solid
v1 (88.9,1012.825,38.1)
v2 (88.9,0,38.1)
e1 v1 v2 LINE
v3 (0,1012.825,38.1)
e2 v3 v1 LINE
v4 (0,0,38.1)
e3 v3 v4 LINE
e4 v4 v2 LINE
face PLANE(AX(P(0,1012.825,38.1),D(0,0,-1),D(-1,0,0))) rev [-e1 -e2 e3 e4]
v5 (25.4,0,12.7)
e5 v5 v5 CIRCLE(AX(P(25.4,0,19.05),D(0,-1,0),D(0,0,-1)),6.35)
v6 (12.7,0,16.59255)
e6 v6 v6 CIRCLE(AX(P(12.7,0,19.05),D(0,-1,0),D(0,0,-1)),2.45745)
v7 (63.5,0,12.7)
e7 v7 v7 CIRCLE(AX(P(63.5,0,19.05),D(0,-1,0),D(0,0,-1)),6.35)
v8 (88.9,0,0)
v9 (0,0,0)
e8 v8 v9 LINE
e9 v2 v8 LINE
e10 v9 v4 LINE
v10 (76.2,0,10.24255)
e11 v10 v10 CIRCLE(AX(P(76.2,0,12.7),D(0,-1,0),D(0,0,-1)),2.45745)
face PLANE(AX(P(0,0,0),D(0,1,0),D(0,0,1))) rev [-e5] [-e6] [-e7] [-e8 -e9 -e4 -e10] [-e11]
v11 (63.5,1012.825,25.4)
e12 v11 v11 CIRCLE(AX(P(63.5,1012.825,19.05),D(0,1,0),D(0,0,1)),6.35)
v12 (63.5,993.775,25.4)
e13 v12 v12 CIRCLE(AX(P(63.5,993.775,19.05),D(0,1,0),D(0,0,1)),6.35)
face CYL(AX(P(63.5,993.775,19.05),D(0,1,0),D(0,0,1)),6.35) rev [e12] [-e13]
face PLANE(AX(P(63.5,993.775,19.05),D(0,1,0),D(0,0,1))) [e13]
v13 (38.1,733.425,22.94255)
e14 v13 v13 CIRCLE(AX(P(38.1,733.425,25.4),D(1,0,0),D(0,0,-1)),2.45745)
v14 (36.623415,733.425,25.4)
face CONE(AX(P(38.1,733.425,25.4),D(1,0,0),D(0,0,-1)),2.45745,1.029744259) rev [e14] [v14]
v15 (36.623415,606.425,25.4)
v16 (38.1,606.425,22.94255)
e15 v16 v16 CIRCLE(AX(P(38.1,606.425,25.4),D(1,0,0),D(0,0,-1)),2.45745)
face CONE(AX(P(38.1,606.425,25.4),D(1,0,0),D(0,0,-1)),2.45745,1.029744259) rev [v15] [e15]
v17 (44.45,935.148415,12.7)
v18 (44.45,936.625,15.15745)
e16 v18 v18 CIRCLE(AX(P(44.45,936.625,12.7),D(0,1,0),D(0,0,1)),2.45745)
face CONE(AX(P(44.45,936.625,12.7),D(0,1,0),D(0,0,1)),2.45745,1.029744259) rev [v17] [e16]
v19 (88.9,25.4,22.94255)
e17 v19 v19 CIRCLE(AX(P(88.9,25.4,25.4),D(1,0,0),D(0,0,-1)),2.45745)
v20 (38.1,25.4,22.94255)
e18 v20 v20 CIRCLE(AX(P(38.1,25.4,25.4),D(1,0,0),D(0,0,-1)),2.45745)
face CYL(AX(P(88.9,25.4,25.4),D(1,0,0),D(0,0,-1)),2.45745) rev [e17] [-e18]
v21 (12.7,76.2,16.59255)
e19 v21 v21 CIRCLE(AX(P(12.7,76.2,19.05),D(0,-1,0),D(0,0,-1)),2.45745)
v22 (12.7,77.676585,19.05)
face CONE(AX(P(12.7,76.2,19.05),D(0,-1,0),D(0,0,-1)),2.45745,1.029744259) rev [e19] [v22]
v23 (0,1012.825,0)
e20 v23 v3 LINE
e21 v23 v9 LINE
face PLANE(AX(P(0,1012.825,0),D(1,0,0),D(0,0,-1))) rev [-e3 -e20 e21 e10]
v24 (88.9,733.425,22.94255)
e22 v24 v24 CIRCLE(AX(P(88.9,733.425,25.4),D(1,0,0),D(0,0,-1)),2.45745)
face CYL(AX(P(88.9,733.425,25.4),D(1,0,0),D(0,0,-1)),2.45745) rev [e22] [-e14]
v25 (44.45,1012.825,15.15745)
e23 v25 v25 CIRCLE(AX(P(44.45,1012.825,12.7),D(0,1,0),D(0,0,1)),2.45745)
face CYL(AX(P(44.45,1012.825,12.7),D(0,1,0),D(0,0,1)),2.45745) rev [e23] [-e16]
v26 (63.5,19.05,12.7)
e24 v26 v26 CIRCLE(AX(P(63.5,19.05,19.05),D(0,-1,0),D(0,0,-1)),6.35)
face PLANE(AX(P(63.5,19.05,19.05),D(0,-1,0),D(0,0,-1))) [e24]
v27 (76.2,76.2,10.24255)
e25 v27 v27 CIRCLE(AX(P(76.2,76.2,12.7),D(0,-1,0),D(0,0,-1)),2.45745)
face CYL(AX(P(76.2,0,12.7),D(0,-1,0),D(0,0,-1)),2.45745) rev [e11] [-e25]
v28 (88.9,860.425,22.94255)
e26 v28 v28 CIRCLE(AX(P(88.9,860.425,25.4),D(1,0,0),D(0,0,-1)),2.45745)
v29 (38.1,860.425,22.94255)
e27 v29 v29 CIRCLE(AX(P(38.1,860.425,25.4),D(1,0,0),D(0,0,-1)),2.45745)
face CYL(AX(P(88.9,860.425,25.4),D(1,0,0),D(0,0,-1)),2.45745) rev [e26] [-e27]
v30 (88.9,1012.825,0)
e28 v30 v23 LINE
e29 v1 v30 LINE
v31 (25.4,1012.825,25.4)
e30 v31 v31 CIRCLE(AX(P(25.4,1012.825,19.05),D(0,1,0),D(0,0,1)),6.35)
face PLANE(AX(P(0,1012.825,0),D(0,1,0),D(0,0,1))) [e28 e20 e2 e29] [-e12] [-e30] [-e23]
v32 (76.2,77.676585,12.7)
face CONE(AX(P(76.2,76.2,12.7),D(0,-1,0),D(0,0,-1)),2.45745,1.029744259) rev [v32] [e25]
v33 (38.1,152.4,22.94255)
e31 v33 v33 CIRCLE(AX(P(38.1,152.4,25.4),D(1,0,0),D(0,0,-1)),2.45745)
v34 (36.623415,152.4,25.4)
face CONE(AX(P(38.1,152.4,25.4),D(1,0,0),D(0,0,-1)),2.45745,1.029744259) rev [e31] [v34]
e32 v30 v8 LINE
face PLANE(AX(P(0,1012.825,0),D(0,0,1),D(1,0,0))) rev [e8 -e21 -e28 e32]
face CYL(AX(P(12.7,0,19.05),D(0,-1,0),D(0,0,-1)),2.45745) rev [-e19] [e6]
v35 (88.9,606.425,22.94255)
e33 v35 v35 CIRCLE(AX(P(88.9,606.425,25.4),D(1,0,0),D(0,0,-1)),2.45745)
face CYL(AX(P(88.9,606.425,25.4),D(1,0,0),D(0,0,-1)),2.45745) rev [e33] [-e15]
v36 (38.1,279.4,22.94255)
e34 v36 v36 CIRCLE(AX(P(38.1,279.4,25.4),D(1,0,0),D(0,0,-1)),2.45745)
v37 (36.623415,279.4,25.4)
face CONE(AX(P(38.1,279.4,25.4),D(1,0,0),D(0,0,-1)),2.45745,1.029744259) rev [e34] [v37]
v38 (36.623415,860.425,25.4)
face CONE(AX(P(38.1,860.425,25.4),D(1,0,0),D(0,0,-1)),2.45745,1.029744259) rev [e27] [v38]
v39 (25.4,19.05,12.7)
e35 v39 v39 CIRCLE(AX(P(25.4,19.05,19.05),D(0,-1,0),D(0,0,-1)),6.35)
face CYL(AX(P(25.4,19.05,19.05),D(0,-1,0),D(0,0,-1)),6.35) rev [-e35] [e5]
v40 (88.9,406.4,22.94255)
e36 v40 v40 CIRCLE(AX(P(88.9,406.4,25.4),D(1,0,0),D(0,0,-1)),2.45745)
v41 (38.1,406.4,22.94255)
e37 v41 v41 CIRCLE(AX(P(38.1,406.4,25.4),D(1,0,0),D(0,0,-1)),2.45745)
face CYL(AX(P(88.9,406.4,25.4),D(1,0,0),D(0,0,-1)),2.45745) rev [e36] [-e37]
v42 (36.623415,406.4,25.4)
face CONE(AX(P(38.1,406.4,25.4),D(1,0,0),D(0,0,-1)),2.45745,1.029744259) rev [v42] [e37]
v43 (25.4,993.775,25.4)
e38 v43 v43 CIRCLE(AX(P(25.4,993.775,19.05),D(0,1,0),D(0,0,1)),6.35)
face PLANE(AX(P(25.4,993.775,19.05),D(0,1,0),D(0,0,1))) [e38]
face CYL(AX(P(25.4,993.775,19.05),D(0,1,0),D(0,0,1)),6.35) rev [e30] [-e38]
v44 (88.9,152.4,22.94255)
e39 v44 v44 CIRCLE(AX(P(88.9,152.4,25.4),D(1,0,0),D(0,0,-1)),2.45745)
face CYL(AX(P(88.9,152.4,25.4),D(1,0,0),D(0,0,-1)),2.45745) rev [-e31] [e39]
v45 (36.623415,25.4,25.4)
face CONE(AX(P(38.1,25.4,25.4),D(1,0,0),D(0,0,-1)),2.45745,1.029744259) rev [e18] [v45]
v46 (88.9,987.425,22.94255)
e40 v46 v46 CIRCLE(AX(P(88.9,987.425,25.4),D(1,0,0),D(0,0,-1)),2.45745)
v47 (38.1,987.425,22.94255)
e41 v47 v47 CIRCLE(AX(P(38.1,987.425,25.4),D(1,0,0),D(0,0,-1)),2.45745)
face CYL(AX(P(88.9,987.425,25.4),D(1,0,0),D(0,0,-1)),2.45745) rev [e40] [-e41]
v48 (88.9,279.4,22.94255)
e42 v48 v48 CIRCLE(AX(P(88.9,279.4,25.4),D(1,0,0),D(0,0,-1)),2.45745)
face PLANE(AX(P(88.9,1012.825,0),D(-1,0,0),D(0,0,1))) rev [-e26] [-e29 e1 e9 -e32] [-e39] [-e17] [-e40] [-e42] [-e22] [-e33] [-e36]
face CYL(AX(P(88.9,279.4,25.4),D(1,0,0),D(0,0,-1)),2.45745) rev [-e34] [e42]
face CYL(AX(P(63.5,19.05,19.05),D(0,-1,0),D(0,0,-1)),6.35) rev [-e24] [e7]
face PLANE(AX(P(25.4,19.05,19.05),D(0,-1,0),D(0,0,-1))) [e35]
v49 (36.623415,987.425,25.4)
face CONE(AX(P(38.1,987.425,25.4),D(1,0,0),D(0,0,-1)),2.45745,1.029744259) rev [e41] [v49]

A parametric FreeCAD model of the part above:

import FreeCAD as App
import Part
import Sketcher

V = App.Vector
Q = App.Units.Quantity

doc = App.newDocument("Part")
params = doc.addObject("Spreadsheet::Sheet", "Params")
for row, (alias, value) in enumerate([
    ("sketch1_width", "3.5 in"),
    ("sketch1_height", "1.5 in"),
    ("pad1_length", "39.875 in"),
    ("sketch2_diameter", "0.5 in"),
    ("pocket1_length", "0.75 in"),
    ("sketch3_diameter", "0.5 in"),
    ("pocket2_length", "0.75 in"),
    ("hole_diameter", "0.1935 in"),
    ("hole_depth", "3 in"),
    ("hole2_diameter", "0.1935 in"),
    ("hole2_depth", "3 in"),
    ("hole3_diameter", "0.1935 in"),
    ("hole3_depth", "2 in"),
], start=1):
    params.set(f"A{row}", alias)
    params.set(f"B{row}", "=" + value)
    params.setAlias(f"B{row}", alias)

body = doc.addObject("PartDesign::Body", "Body")

# Sketch on XZ plane
sketch1 = doc.addObject("Sketcher::SketchObject", "Sketch")
body.addObject(sketch1)
sketch1.AttachmentSupport = (doc.XZ_Plane, [""])
sketch1.MapMode = "FlatFace"
sketch1.addGeometry([
    Part.LineSegment(V(0, 0, 0), V(0, 38.1, 0)),
    Part.LineSegment(V(0, 38.1, 0), V(88.9, 38.1, 0)),
    Part.LineSegment(V(88.9, 38.1, 0), V(88.9, 0, 0)),
    Part.LineSegment(V(88.9, 0, 0), V(0, 0, 0)),
], False)
sketch1.addConstraint([
    Sketcher.Constraint("Coincident", 0, 2, 1, 1),
    Sketcher.Constraint("Coincident", 1, 2, 2, 1),
    Sketcher.Constraint("Coincident", 2, 2, 3, 1),
    Sketcher.Constraint("Coincident", 3, 2, 0, 1),
    Sketcher.Constraint("Vertical", 0),
    Sketcher.Constraint("Horizontal", 1),
    Sketcher.Constraint("Vertical", 2),
    Sketcher.Constraint("Horizontal", 3),
    Sketcher.Constraint("Coincident", 3, 2, -1, 1),
    Sketcher.Constraint("DistanceX", 1, 1, 1, 2, Q("3.5 in")),
    Sketcher.Constraint("DistanceY", 0, 1, 0, 2, Q("1.5 in")),
])
sketch1.setExpression("Constraints[9]", "Params.sketch1_width")
sketch1.setExpression("Constraints[10]", "Params.sketch1_height")
pad1 = doc.addObject("PartDesign::Pad", "Pad")
body.addObject(pad1)
pad1.Profile = sketch1
pad1.setExpression("Length", "Params.pad1_length")
pad1.Reversed = True

# Sketch on XZ plane
sketch2 = doc.addObject("Sketcher::SketchObject", "Sketch001")
body.addObject(sketch2)
sketch2.AttachmentSupport = (doc.XZ_Plane, [""])
sketch2.MapMode = "FlatFace"
sketch2.AttachmentOffset = App.Placement(V(0, 0, -39.875 * 25.4), App.Rotation())
sketch2.addGeometry([
    Part.Circle(V(25.4, 19.05, 0), V(0, 0, 1), 6.35),
    Part.Circle(V(63.5, 19.05, 0), V(0, 0, 1), 6.35),
], False)
sketch2.addConstraint([
    Sketcher.Constraint("Equal", 0, 1),
    Sketcher.Constraint("Horizontal", 0, 3, 1, 3),
    Sketcher.Constraint("Diameter", 0, Q("0.5 in")),
    Sketcher.Constraint("DistanceX", -1, 1, 0, 3, Q("1 in")),
    Sketcher.Constraint("DistanceX", -1, 1, 1, 3, Q("2.5 in")),
    Sketcher.Constraint("DistanceY", -1, 1, 0, 3, Q("0.75 in")),
])
sketch2.setExpression("Constraints[2]", "Params.sketch2_diameter")
pocket1 = doc.addObject("PartDesign::Pocket", "Pocket")
body.addObject(pocket1)
pocket1.Profile = sketch2
pocket1.setExpression("Length", "Params.pocket1_length")
pocket1.Reversed = True

# Sketch on XZ plane
sketch3 = doc.addObject("Sketcher::SketchObject", "Sketch002")
body.addObject(sketch3)
sketch3.AttachmentSupport = (doc.XZ_Plane, [""])
sketch3.MapMode = "FlatFace"
sketch3.addGeometry([
    Part.Circle(V(25.4, 19.05, 0), V(0, 0, 1), 6.35),
    Part.Circle(V(63.5, 19.05, 0), V(0, 0, 1), 6.35),
], False)
sketch3.addConstraint([
    Sketcher.Constraint("Equal", 0, 1),
    Sketcher.Constraint("Horizontal", 0, 3, 1, 3),
    Sketcher.Constraint("Diameter", 0, Q("0.5 in")),
    Sketcher.Constraint("DistanceX", -1, 1, 0, 3, Q("1 in")),
    Sketcher.Constraint("DistanceX", -1, 1, 1, 3, Q("2.5 in")),
    Sketcher.Constraint("DistanceY", -1, 1, 0, 3, Q("0.75 in")),
])
sketch3.setExpression("Constraints[2]", "Params.sketch3_diameter")
pocket2 = doc.addObject("PartDesign::Pocket", "Pocket001")
body.addObject(pocket2)
pocket2.Profile = sketch3
pocket2.setExpression("Length", "Params.pocket2_length")

# Sketch on XZ plane
sketch4 = doc.addObject("Sketcher::SketchObject", "Sketch003")
body.addObject(sketch4)
sketch4.AttachmentSupport = (doc.XZ_Plane, [""])
sketch4.MapMode = "FlatFace"
sketch4.AttachmentOffset = App.Placement(V(0, 0, -39.875 * 25.4), App.Rotation())
sketch4.addGeometry(Part.Circle(V(44.45, 12.7, 0), V(0, 0, 1), 2.45745), False)
sketch4.addConstraint([
    Sketcher.Constraint("Diameter", 0, Q("0.1935 in")),
    Sketcher.Constraint("DistanceY", -1, 1, 0, 3, Q("0.5 in")),
    Sketcher.Constraint("DistanceX", -1, 1, 0, 3, Q("1.75 in")),
])
doc.recompute()
hole = doc.addObject("PartDesign::Hole", "Hole")
body.addObject(hole)
hole.Profile = sketch4
hole.ThreadType = "None"
hole.setExpression("Diameter", "Params.hole_diameter")
hole.DepthType = "Dimension"
hole.setExpression("Depth", "Params.hole_depth")
hole.DrillPoint = "Angled"
hole.DrillPointAngle = 118
hole.Reversed = True

# Sketch on XZ plane
sketch5 = doc.addObject("Sketcher::SketchObject", "Sketch004")
body.addObject(sketch5)
sketch5.AttachmentSupport = (doc.XZ_Plane, [""])
sketch5.MapMode = "FlatFace"
sketch5.addGeometry([
    Part.Circle(V(12.7, 19.05, 0), V(0, 0, 1), 2.45745),
    Part.Circle(V(76.2, 12.7, 0), V(0, 0, 1), 2.45745),
], False)
sketch5.addConstraint([
    Sketcher.Constraint("Equal", 0, 1),
    Sketcher.Constraint("DistanceX", -1, 1, 1, 3, Q("3 in")),
    Sketcher.Constraint("Diameter", 0, Q("0.1935 in")),
    Sketcher.Constraint("DistanceX", -1, 1, 0, 3, Q("0.5 in")),
    Sketcher.Constraint("DistanceY", -1, 1, 1, 3, Q("0.5 in")),
    Sketcher.Constraint("DistanceY", -1, 1, 0, 3, Q("0.75 in")),
])
doc.recompute()
hole2 = doc.addObject("PartDesign::Hole", "Hole001")
body.addObject(hole2)
hole2.Profile = sketch5
hole2.ThreadType = "None"
hole2.setExpression("Diameter", "Params.hole2_diameter")
hole2.DepthType = "Dimension"
hole2.setExpression("Depth", "Params.hole2_depth")
hole2.DrillPoint = "Angled"
hole2.DrillPointAngle = 118

# Sketch on YZ plane
sketch6 = doc.addObject("Sketcher::SketchObject", "Sketch005")
body.addObject(sketch6)
sketch6.AttachmentSupport = (doc.YZ_Plane, [""])
sketch6.MapMode = "FlatFace"
sketch6.AttachmentOffset = App.Placement(V(0, 0, 3.5 * 25.4), App.Rotation())
sketch6.addGeometry([
    Part.Circle(V(987.425, 25.4, 0), V(0, 0, 1), 2.45745),  # 0
    Part.Circle(V(860.425, 25.4, 0), V(0, 0, 1), 2.45745),  # 1
    Part.Circle(V(733.425, 25.4, 0), V(0, 0, 1), 2.45745),  # 2
    Part.Circle(V(606.425, 25.4, 0), V(0, 0, 1), 2.45745),  # 3
    Part.Circle(V(406.4, 25.4, 0), V(0, 0, 1), 2.45745),  # 4
    Part.Circle(V(279.4, 25.4, 0), V(0, 0, 1), 2.45745),  # 5
    Part.Circle(V(152.4, 25.4, 0), V(0, 0, 1), 2.45745),  # 6
    Part.Circle(V(25.4, 25.4, 0), V(0, 0, 1), 2.45745),  # 7
], False)
sketch6.addConstraint([
    Sketcher.Constraint("Equal", 0, 1),
    Sketcher.Constraint("Equal", 1, 2),
    Sketcher.Constraint("Equal", 2, 3),
    Sketcher.Constraint("Equal", 3, 4),
    Sketcher.Constraint("Equal", 4, 5),
    Sketcher.Constraint("Equal", 5, 6),
    Sketcher.Constraint("Equal", 6, 7),
    Sketcher.Constraint("Horizontal", 0, 3, 1, 3),
    Sketcher.Constraint("Horizontal", 1, 3, 2, 3),
    Sketcher.Constraint("Horizontal", 2, 3, 3, 3),
    Sketcher.Constraint("Horizontal", 3, 3, 4, 3),
    Sketcher.Constraint("Horizontal", 4, 3, 5, 3),
    Sketcher.Constraint("Horizontal", 5, 3, 6, 3),
    Sketcher.Constraint("Horizontal", 6, 3, 7, 3),
    Sketcher.Constraint("DistanceY", -1, 1, 0, 3, Q("1 in")),
    Sketcher.Constraint("DistanceX", -1, 1, 4, 3, Q("16 in")),
    Sketcher.Constraint("DistanceX", -1, 1, 5, 3, Q("11 in")),
    Sketcher.Constraint("DistanceX", -1, 1, 6, 3, Q("6 in")),
    Sketcher.Constraint("DistanceX", -1, 1, 7, 3, Q("1 in")),
    Sketcher.Constraint("DistanceX", 1, 3, 0, 3, Q("5 in")),
    Sketcher.Constraint("DistanceX", 2, 3, 1, 3, Q("5 in")),
    Sketcher.Constraint("DistanceX", 3, 3, 2, 3, Q("5 in")),
    Sketcher.Constraint("Diameter", 0, Q("0.1935 in")),
    Sketcher.Constraint("DistanceX", -1, 1, 0, 3, Q("38.875 in")),
])
doc.recompute()
hole3 = doc.addObject("PartDesign::Hole", "Hole002")
body.addObject(hole3)
hole3.Profile = sketch6
hole3.ThreadType = "None"
hole3.setExpression("Diameter", "Params.hole3_diameter")
hole3.DepthType = "Dimension"
hole3.setExpression("Depth", "Params.hole3_depth")
hole3.DrillPoint = "Angled"
hole3.DrillPointAngle = 118

doc.recompute()
